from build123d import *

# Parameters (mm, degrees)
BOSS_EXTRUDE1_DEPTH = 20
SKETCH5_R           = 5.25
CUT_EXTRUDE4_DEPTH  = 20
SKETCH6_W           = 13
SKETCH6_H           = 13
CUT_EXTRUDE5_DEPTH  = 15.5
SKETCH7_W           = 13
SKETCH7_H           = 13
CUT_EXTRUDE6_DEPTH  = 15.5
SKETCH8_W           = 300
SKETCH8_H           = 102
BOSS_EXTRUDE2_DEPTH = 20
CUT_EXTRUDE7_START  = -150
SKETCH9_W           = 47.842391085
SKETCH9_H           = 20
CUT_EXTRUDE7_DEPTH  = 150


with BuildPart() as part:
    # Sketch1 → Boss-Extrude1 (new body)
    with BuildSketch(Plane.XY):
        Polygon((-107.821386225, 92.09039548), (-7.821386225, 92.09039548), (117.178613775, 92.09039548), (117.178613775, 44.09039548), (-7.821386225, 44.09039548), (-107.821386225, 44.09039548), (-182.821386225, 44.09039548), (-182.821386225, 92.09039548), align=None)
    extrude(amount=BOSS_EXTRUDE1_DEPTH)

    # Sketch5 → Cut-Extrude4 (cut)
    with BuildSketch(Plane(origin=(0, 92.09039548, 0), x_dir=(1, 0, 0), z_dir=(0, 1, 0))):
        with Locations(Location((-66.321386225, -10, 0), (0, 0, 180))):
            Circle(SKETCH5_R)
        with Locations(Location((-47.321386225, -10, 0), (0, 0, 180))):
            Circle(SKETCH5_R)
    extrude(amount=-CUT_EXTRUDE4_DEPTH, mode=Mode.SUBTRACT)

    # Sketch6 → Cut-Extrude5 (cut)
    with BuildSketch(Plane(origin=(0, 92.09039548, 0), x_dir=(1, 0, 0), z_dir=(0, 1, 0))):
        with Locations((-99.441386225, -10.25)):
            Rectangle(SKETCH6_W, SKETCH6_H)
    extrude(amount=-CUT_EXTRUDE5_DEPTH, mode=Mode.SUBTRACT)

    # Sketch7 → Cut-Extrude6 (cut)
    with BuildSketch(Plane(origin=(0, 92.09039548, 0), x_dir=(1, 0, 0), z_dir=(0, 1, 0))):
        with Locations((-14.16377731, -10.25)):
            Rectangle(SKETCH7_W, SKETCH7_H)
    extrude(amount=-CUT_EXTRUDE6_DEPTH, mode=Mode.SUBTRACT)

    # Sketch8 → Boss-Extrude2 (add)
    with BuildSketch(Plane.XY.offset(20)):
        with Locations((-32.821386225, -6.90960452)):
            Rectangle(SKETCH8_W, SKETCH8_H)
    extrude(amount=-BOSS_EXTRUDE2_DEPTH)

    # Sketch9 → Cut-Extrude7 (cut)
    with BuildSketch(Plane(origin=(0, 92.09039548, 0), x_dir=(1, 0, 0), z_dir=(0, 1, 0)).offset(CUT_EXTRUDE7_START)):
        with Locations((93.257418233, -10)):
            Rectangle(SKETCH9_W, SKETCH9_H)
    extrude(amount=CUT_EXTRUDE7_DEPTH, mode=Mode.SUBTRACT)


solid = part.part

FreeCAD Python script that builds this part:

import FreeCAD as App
import Part
import Sketcher
from FreeCAD import Vector


def add_polygon(sketch, points):
    """Adds a closed chain of lines whose ends are joined by coincident constraints."""
    first, n = sketch.GeometryCount, len(points)
    for a, b in zip(points, points[1:] + points[:1]):
        sketch.addGeometry(Part.LineSegment(App.Vector(*a, 0), App.Vector(*b, 0)), False)
    for i in range(n):
        sketch.addConstraint(Sketcher.Constraint("Coincident", first + i, 2, first + (i + 1) % n, 1))

doc = App.newDocument("Part")
body = doc.addObject("PartDesign::Body", "Body")

sketch1 = body.newObject("Sketcher::SketchObject", "Sketch")
sketch1.AttachmentSupport = (doc.getObject("XY_Plane"), [""])
sketch1.MapMode = "FlatFace"
add_polygon(sketch1, [(117, 92), (-183, 92), (-183, 44), (117, 44)])
sketch1.addConstraint([
    Sketcher.Constraint("Horizontal", 0),
    Sketcher.Constraint("Vertical", 1),
    Sketcher.Constraint("Horizontal", 2),
    Sketcher.Constraint("Vertical", 3),
    Sketcher.Constraint("DistanceX", 0, 2, 0, 1, 300.0),
    Sketcher.Constraint("DistanceY", 1, 2, 1, 1, 48.0),
    Sketcher.Constraint("DistanceX", 0, 2, -1, 1, 182.821386),
    Sketcher.Constraint("DistanceY", -1, 1, 0, 2, 92.090395),
])
pad1 = body.newObject("PartDesign::Pad", "Pad")
pad1.Profile = sketch1
pad1.Length = 20

sketch2 = body.newObject("Sketcher::SketchObject", "Sketch001")
sketch2.AttachmentSupport = (doc.getObject("XZ_Plane"), [""])
sketch2.MapMode = "FlatFace"
sketch2.AttachmentOffset = App.Placement(Vector(0, 0, -92.090395), App.Rotation())
sketch2.addGeometry([
    Part.Circle(Vector(-66, 10, 0), Vector(0, 0, 1), 5),
    Part.Circle(Vector(-47, 10, 0), Vector(0, 0, 1), 5),
], False)
sketch2.addConstraint([
    Sketcher.Constraint("Equal", 0, 1),
    Sketcher.Constraint("Horizontal", 0, 3, 1, 3),
    Sketcher.Constraint("Diameter", 0, 10.5),
    Sketcher.Constraint("DistanceY", -1, 1, 0, 3, 10.0),
    Sketcher.Constraint("DistanceX", 0, 3, 1, 3, 19.0),
    Sketcher.Constraint("DistanceX", 0, 3, -1, 1, 66.321386),
])
pocket1 = body.newObject("PartDesign::Pocket", "Pocket")
pocket1.Profile = sketch2
pocket1.Length = 20
pocket1.Reversed = True

sketch3 = body.newObject("Sketcher::SketchObject", "Sketch002")
sketch3.AttachmentSupport = (doc.getObject("XZ_Plane"), [""])
sketch3.MapMode = "FlatFace"
sketch3.AttachmentOffset = App.Placement(Vector(0, 0, -92.090395), App.Rotation())
add_polygon(sketch3, [(-106, 4), (-106, 17), (-93, 17), (-93, 4)])
sketch3.addConstraint([
    Sketcher.Constraint("Vertical", 0),
    Sketcher.Constraint("Horizontal", 1),
    Sketcher.Constraint("Vertical", 2),
    Sketcher.Constraint("Horizontal", 3),
    Sketcher.Constraint("Equal", 3, 0),
    Sketcher.Constraint("DistanceX", 1, 1, 1, 2, 13.0),
    Sketcher.Constraint("DistanceY", -1, 1, 0, 2, 16.75),
    Sketcher.Constraint("DistanceX", 0, 2, -1, 1, 105.941386),
])
pocket2 = body.newObject("PartDesign::Pocket", "Pocket001")
pocket2.Profile = sketch3
pocket2.Length = 15.5
pocket2.Reversed = True

sketch4 = body.newObject("Sketcher::SketchObject", "Sketch003")
sketch4.AttachmentSupport = (doc.getObject("XZ_Plane"), [""])
sketch4.MapMode = "FlatFace"
sketch4.AttachmentOffset = App.Placement(Vector(0, 0, -92.090395), App.Rotation())
add_polygon(sketch4, [(-21, 4), (-21, 17), (-8, 17), (-8, 4)])
sketch4.addConstraint([
    Sketcher.Constraint("Vertical", 0),
    Sketcher.Constraint("Horizontal", 1),
    Sketcher.Constraint("Vertical", 2),
    Sketcher.Constraint("Horizontal", 3),
    Sketcher.Constraint("Equal", 3, 0),
    Sketcher.Constraint("DistanceX", 1, 1, 1, 2, 13.0),
    Sketcher.Constraint("DistanceY", -1, 1, 0, 2, 16.75),
    Sketcher.Constraint("DistanceX", 0, 2, -1, 1, 20.663777),
])
pocket3 = body.newObject("PartDesign::Pocket", "Pocket002")
pocket3.Profile = sketch4
pocket3.Length = 15.5
pocket3.Reversed = True

sketch5 = body.newObject("Sketcher::SketchObject", "Sketch004")
sketch5.AttachmentSupport = (doc.getObject("XY_Plane"), [""])
sketch5.MapMode = "FlatFace"
sketch5.AttachmentOffset = App.Placement(Vector(0, 0, 20), App.Rotation())
add_polygon(sketch5, [(-183, 44), (-183, -58), (117, -58), (117, 44)])
sketch5.addConstraint([
    Sketcher.Constraint("Vertical", 0),
    Sketcher.Constraint("Horizontal", 1),
    Sketcher.Constraint("Vertical", 2),
    Sketcher.Constraint("Horizontal", 3),
    Sketcher.Constraint("DistanceX", 1, 1, 1, 2, 300.0),
    Sketcher.Constraint("DistanceY", 0, 2, 0, 1, 102.0),
    Sketcher.Constraint("DistanceX", 0, 2, -1, 1, 182.821386),
    Sketcher.Constraint("DistanceY", 0, 2, -1, 1, 57.909605),
])
pad2 = body.newObject("PartDesign::Pad", "Pad001")
pad2.Profile = sketch5
pad2.Length = 20
pad2.Reversed = True

sketch6 = body.newObject("Sketcher::SketchObject", "Sketch005")
sketch6.AttachmentSupport = (doc.getObject("XZ_Plane"), [""])
sketch6.MapMode = "FlatFace"
sketch6.AttachmentOffset = App.Placement(Vector(0, 0, 57.909605), App.Rotation())
add_polygon(sketch6, [(69, 0), (69, 20), (117, 20), (117, 0)])
sketch6.addConstraint([
    Sketcher.Constraint("Vertical", 0),
    Sketcher.Constraint("Horizontal", 1),
    Sketcher.Constraint("Vertical", 2),
    Sketcher.Constraint("Horizontal", 3),
    Sketcher.Constraint("PointOnObject", 2, 2, -1),
    Sketcher.Constraint("DistanceY", 0, 1, 0, 2, 20.0),
    Sketcher.Constraint("DistanceX", 1, 1, 1, 2, 47.842391),
    Sketcher.Constraint("DistanceX", -1, 1, 0, 2, 69.336223),
])
pocket4 = body.newObject("PartDesign::Pocket", "Pocket003")
pocket4.Profile = sketch6
pocket4.Length = 150

doc.recompute()
